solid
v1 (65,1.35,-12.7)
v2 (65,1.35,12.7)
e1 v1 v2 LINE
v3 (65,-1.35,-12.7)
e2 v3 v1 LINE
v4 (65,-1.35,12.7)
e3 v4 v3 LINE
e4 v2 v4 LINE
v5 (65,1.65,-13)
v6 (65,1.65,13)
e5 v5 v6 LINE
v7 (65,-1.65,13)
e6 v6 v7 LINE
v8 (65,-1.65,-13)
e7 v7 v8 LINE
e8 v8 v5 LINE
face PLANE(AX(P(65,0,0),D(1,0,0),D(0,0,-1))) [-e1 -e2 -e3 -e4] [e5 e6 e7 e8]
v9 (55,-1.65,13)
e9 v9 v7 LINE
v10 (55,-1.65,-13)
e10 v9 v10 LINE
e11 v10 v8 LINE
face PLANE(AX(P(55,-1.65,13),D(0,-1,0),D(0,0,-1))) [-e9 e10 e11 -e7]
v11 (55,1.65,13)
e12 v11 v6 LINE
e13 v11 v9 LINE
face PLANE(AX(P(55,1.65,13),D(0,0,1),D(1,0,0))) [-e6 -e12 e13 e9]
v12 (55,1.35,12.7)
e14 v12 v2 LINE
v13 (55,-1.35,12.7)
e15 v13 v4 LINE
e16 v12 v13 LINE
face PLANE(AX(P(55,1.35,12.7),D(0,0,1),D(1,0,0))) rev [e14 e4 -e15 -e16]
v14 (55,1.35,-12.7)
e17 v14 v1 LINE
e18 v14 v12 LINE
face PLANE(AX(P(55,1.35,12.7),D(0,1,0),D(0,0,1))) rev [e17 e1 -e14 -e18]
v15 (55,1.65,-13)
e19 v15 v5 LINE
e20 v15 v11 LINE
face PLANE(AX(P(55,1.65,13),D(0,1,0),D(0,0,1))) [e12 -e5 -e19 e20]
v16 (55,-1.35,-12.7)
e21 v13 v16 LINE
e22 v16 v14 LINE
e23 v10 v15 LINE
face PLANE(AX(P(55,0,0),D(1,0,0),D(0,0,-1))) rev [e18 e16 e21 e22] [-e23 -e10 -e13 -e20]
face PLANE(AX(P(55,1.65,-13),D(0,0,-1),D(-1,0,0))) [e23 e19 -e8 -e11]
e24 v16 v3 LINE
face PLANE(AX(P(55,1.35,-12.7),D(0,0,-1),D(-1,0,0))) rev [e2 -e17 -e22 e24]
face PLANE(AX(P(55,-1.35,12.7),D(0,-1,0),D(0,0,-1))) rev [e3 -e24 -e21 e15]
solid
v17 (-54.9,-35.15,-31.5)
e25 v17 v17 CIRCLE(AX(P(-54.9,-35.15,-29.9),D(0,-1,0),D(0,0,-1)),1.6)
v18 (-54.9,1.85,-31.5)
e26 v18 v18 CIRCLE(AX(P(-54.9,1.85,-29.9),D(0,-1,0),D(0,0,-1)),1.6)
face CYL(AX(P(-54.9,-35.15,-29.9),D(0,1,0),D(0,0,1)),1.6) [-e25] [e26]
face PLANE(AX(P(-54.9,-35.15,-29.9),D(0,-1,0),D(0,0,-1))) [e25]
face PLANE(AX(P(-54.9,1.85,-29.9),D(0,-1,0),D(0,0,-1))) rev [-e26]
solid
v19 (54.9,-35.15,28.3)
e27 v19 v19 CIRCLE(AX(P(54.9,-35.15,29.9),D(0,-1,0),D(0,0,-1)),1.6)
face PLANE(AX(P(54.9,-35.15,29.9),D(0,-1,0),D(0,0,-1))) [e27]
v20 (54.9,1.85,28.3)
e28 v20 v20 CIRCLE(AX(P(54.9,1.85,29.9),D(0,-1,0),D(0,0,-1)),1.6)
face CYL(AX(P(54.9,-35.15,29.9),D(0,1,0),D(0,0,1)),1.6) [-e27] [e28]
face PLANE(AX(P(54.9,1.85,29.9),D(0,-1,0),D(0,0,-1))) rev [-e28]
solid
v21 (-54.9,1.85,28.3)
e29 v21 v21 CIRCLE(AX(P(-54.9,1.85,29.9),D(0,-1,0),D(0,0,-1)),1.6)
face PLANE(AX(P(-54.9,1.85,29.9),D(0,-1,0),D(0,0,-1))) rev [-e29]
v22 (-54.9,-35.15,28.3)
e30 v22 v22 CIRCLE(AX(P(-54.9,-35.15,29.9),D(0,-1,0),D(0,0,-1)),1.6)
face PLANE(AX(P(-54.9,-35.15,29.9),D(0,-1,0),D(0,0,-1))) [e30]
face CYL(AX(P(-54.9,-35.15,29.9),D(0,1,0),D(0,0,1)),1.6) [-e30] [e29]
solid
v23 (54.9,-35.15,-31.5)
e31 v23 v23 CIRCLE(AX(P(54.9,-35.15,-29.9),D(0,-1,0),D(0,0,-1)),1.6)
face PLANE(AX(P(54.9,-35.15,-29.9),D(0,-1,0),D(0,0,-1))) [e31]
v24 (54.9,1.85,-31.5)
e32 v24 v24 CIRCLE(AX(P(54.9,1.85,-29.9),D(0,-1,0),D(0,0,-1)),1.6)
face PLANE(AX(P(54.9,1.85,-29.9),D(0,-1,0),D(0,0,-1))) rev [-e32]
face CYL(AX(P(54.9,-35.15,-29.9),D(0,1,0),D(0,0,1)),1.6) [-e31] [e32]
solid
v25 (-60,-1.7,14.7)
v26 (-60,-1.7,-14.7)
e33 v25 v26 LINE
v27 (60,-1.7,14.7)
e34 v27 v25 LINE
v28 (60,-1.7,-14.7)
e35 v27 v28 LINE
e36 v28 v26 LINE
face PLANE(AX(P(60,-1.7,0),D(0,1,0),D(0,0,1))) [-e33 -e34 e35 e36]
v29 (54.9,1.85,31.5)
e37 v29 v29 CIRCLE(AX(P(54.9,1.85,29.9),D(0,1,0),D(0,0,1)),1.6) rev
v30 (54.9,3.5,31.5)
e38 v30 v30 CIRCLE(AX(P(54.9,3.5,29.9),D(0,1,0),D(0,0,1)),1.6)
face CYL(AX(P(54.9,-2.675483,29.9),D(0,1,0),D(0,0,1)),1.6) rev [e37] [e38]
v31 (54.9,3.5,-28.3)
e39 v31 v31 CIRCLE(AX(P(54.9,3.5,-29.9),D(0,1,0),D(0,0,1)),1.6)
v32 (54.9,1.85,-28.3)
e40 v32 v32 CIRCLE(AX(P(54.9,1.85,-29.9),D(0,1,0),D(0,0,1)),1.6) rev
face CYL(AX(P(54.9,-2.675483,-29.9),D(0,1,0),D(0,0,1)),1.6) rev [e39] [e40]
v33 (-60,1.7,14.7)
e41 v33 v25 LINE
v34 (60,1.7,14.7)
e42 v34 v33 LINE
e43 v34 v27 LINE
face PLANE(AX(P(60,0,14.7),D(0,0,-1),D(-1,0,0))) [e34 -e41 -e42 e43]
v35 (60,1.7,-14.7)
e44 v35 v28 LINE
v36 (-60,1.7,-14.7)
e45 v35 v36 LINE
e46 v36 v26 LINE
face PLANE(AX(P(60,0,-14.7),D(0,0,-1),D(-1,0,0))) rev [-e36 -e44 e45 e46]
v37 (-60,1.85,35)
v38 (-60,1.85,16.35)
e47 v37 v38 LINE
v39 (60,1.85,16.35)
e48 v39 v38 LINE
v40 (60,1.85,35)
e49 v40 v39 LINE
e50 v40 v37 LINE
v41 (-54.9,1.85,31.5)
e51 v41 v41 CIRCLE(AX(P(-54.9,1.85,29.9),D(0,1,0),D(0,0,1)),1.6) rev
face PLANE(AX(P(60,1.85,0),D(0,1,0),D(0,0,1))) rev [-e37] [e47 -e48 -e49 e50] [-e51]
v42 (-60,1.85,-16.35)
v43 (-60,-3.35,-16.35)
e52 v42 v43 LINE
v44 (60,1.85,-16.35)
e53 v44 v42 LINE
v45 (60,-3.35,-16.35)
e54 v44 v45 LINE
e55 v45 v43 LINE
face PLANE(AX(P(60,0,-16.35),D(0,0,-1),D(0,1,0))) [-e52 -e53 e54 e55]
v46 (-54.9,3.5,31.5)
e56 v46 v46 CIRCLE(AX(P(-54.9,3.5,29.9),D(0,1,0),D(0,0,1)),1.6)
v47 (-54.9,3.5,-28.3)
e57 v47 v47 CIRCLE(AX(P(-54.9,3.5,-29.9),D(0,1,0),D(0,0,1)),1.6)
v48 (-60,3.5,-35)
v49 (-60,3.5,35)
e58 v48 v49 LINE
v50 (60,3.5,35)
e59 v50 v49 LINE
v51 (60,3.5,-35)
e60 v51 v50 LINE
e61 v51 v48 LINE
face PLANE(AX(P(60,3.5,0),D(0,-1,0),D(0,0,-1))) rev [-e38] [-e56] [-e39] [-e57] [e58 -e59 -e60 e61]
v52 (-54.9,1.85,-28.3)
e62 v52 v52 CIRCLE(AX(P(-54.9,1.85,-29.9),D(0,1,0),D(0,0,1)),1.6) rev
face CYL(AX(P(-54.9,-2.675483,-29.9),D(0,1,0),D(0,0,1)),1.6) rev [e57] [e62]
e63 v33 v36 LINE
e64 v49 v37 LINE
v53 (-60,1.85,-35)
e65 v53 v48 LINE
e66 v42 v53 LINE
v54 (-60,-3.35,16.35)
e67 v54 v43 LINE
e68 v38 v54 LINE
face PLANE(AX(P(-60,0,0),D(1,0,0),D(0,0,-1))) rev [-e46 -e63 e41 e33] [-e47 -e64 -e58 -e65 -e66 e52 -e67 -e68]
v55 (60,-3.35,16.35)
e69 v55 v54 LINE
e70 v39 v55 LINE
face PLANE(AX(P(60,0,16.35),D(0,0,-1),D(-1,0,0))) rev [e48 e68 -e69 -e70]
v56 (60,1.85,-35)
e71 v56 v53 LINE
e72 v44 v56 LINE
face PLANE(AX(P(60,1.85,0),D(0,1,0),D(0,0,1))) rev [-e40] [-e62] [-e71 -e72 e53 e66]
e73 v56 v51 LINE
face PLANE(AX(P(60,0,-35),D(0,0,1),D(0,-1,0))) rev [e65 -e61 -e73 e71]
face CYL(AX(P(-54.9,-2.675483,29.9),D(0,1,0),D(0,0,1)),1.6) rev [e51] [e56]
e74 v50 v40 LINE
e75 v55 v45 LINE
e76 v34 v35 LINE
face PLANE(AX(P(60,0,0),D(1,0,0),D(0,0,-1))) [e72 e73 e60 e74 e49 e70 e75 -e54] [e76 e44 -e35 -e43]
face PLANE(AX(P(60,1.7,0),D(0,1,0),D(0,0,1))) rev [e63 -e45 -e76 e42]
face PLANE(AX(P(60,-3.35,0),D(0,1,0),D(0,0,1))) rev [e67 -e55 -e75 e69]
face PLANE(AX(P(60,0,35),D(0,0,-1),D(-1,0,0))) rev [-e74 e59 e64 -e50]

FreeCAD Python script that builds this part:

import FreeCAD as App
import Part
import Sketcher


def add_polygon(sketch, points):
    """Adds a closed chain of lines whose ends are joined by coincident constraints."""
    first, n = sketch.GeometryCount, len(points)
    for a, b in zip(points, points[1:] + points[:1]):
        sketch.addGeometry(Part.LineSegment(App.Vector(*a, 0), App.Vector(*b, 0)), False)
    for i in range(n):
        sketch.addConstraint(Sketcher.Constraint("Coincident", first + i, 2, first + (i + 1) % n, 1))

doc = App.newDocument("Part")
params = doc.addObject("Spreadsheet::Sheet", "Params")
for row, (alias, value) in enumerate([
    ("sketch1_height", "70 mm"),
    ("sketch1_width", "5.2 mm"),
    ("sketch1_width2", "3.4 mm"),
    ("sketch1_height2", "32.7 mm"),
    ("sketch1_height3", "29.4 mm"),
    ("pad1_length", "120 mm"),
    ("sketch2_diameter", "3.2 mm"),
    ("pocket1_length", "1.65 mm"),
    ("sketch3_height", "26 mm"),
    ("sketch3_width", "3.3 mm"),
    ("sketch3_width2", "2.7 mm"),
    ("sketch3_height2", "25.4 mm"),
    ("pad2_length", "5 mm"),
    ("pad2_length2", "5 mm"),
    ("sketch4_diameter", "3.2 mm"),
    ("pad3_length", "37 mm"),
    ("sketch5_diameter", "3.2 mm"),
    ("pad4_length", "37 mm"),
    ("sketch6_diameter", "3.2 mm"),
    ("pad5_length", "37 mm"),
    ("sketch7_diameter", "3.2 mm"),
    ("pad6_length", "37 mm"),
], start=1):
    params.set(f"A{row}", alias)
    params.set(f"B{row}", "=" + value)
    params.setAlias(f"B{row}", alias)

body = doc.addObject("PartDesign::Body", "Body")

# Sketch on YZ plane
sketch1 = body.newObject("Sketcher::SketchObject", "Sketch")
sketch1.AttachmentSupport = (doc.getObject("YZ_Plane"), [""])
sketch1.MapMode = "FlatFace"
add_polygon(sketch1, [(1.85, 35), (1.85, 16.35), (-3.35, 16.35), (-3.35, -16.35), (1.85, -16.35), (1.85, -35), (3.5, -35), (3.5, 35)])  # lines 0-7
add_polygon(sketch1, [(-1.7, -14.7), (-1.7, 14.7), (1.7, 14.7), (1.7, -14.7)])  # lines 8-11
sketch1.addConstraint([
    Sketcher.Constraint("Vertical", 0),
    Sketcher.Constraint("Horizontal", 1),
    Sketcher.Constraint("Vertical", 2),
    Sketcher.Constraint("Horizontal", 3),
    Sketcher.Constraint("Vertical", 4),
    Sketcher.Constraint("Horizontal", 5),
    Sketcher.Constraint("Vertical", 6),
    Sketcher.Constraint("Horizontal", 7),
    Sketcher.Constraint("Vertical", 8),
    Sketcher.Constraint("Horizontal", 9),
    Sketcher.Constraint("Vertical", 10),
    Sketcher.Constraint("Horizontal", 11),
    Sketcher.Constraint("Symmetric", 8, 2, 10, 2, -1, 1),
    Sketcher.Constraint("Symmetric", 0, 2, 3, 2, -1),
    Sketcher.Constraint("Equal", 0, 4),
    Sketcher.Constraint("DistanceY", 6, 1, 6, 2, 70.0),
    Sketcher.Constraint("DistanceX", 1, 2, 1, 1, 5.2),
    Sketcher.Constraint("DistanceX", 9, 1, 9, 2, 3.4),
    Sketcher.Constraint("DistanceY", 2, 2, 2, 1, 32.7),
    Sketcher.Constraint("DistanceY", 8, 1, 8, 2, 29.4),
    Sketcher.Constraint("DistanceX", 5, 1, 5, 2, 1.65),
    Sketcher.Constraint("DistanceX", -1, 1, 5, 2, 3.5),
])
sketch1.setExpression("Constraints[27]", "Params.sketch1_height")
sketch1.setExpression("Constraints[28]", "Params.sketch1_width")
sketch1.setExpression("Constraints[29]", "Params.sketch1_width2")
sketch1.setExpression("Constraints[30]", "Params.sketch1_height2")
sketch1.setExpression("Constraints[31]", "Params.sketch1_height3")
pad1 = body.newObject("PartDesign::Pad", "Pad")
pad1.Profile = sketch1
pad1.setExpression("Length", "Params.pad1_length")
pad1.Midplane = True

# Sketch on XZ plane
sketch2 = body.newObject("Sketcher::SketchObject", "Sketch001")
sketch2.AttachmentSupport = (doc.getObject("XZ_Plane"), [""])
sketch2.MapMode = "FlatFace"
sketch2.AttachmentOffset = App.Placement(App.Vector(0, 0, -3.5), App.Rotation())
sketch2.addGeometry([
    Part.Circle(App.Vector(-54.9, -29.9, 0), App.Vector(0, 0, 1), 1.6),
    Part.Circle(App.Vector(-54.9, 29.9, 0), App.Vector(0, 0, 1), 1.6),
    Part.Circle(App.Vector(54.9, 29.9, 0), App.Vector(0, 0, 1), 1.6),
    Part.Circle(App.Vector(54.9, -29.9, 0), App.Vector(0, 0, 1), 1.6),
], False)
sketch2.addConstraint([
    Sketcher.Constraint("Equal", 0, 1),
    Sketcher.Constraint("Equal", 1, 2),
    Sketcher.Constraint("Equal", 2, 3),
    Sketcher.Constraint("Symmetric", 0, 3, 2, 3, -1, 1),
    Sketcher.Constraint("Symmetric", 1, 3, 3, 3, -1, 1),
    Sketcher.Constraint("Symmetric", 1, 3, 2, 3, -2),
    Sketcher.Constraint("Diameter", 0, 3.2),
    Sketcher.Constraint("DistanceX", 0, 3, -1, 1, 54.9),
    Sketcher.Constraint("DistanceY", 0, 3, -1, 1, 29.9),
])
sketch2.setExpression("Constraints[6]", "Params.sketch2_diameter")
pocket1 = body.newObject("PartDesign::Pocket", "Pocket")
pocket1.Profile = sketch2
pocket1.setExpression("Length", "Params.pocket1_length")
pocket1.Reversed = True
body2 = doc.addObject("PartDesign::Body", "Body001")

# Sketch on YZ plane
sketch3 = body2.newObject("Sketcher::SketchObject", "Sketch002")
sketch3.AttachmentSupport = (doc.getObject("YZ_Plane001"), [""])
sketch3.MapMode = "FlatFace"
sketch3.AttachmentOffset = App.Placement(App.Vector(0, 0, 60), App.Rotation())
add_polygon(sketch3, [(1.65, 13), (-1.65, 13), (-1.65, -13), (1.65, -13)])  # lines 0-3
add_polygon(sketch3, [(-1.35, -12.7), (-1.35, 12.7), (1.35, 12.7), (1.35, -12.7)])  # lines 4-7
sketch3.addConstraint([
    Sketcher.Constraint("Horizontal", 0),
    Sketcher.Constraint("Vertical", 1),
    Sketcher.Constraint("Horizontal", 2),
    Sketcher.Constraint("Vertical", 3),
    Sketcher.Constraint("Vertical", 4),
    Sketcher.Constraint("Horizontal", 5),
    Sketcher.Constraint("Vertical", 6),
    Sketcher.Constraint("Horizontal", 7),
    Sketcher.Constraint("Symmetric", 0, 2, 2, 2, -1, 1),
    Sketcher.Constraint("Symmetric", 4, 2, 6, 2, -1, 1),
    Sketcher.Constraint("DistanceY", 1, 2, 1, 1, 26.0),
    Sketcher.Constraint("DistanceX", 0, 2, 0, 1, 3.3),
    Sketcher.Constraint("DistanceX", 5, 1, 5, 2, 2.7),
    Sketcher.Constraint("DistanceY", 4, 1, 4, 2, 25.4),
])
sketch3.setExpression("Constraints[18]", "Params.sketch3_height")
sketch3.setExpression("Constraints[19]", "Params.sketch3_width")
sketch3.setExpression("Constraints[20]", "Params.sketch3_width2")
sketch3.setExpression("Constraints[21]", "Params.sketch3_height2")
pad2 = body2.newObject("PartDesign::Pad", "Pad001")
pad2.Profile = sketch3
pad2.Type = "TwoLengths"
pad2.setExpression("Length", "Params.pad2_length")
pad2.setExpression("Length2", "Params.pad2_length2")
body3 = doc.addObject("PartDesign::Body", "Body002")

# Sketch on XZ plane
sketch4 = body3.newObject("Sketcher::SketchObject", "Sketch003")
sketch4.AttachmentSupport = (doc.getObject("XZ_Plane002"), [""])
sketch4.MapMode = "FlatFace"
sketch4.AttachmentOffset = App.Placement(App.Vector(0, 0, -1.85), App.Rotation())
sketch4.addGeometry(Part.Circle(App.Vector(-54.9, -29.9, 0), App.Vector(0, 0, 1), 1.6), False)
sketch4.addConstraint([
    Sketcher.Constraint("Diameter", 0, 3.2),
    Sketcher.Constraint("DistanceX", 0, 3, -1, 1, 54.9),
    Sketcher.Constraint("DistanceY", 0, 3, -1, 1, 29.9),
])
sketch4.setExpression("Constraints[0]", "Params.sketch4_diameter")
pad3 = body3.newObject("PartDesign::Pad", "Pad002")
pad3.Profile = sketch4
pad3.setExpression("Length", "Params.pad3_length")
body4 = doc.addObject("PartDesign::Body", "Body003")

# Sketch on XZ plane
sketch5 = body4.newObject("Sketcher::SketchObject", "Sketch004")
sketch5.AttachmentSupport = (doc.getObject("XZ_Plane003"), [""])
sketch5.MapMode = "FlatFace"
sketch5.AttachmentOffset = App.Placement(App.Vector(0, 0, -1.85), App.Rotation())
sketch5.addGeometry(Part.Circle(App.Vector(54.9, -29.9, 0), App.Vector(0, 0, 1), 1.6), False)
sketch5.addConstraint([
    Sketcher.Constraint("Diameter", 0, 3.2),
    Sketcher.Constraint("DistanceX", -1, 1, 0, 3, 54.9),
    Sketcher.Constraint("DistanceY", 0, 3, -1, 1, 29.9),
])
sketch5.setExpression("Constraints[0]", "Params.sketch5_diameter")
pad4 = body4.newObject("PartDesign::Pad", "Pad003")
pad4.Profile = sketch5
pad4.setExpression("Length", "Params.pad4_length")
body5 = doc.addObject("PartDesign::Body", "Body004")

# Sketch on XZ plane
sketch6 = body5.newObject("Sketcher::SketchObject", "Sketch005")
sketch6.AttachmentSupport = (doc.getObject("XZ_Plane004"), [""])
sketch6.MapMode = "FlatFace"
sketch6.AttachmentOffset = App.Placement(App.Vector(0, 0, -1.85), App.Rotation())
sketch6.addGeometry(Part.Circle(App.Vector(54.9, 29.9, 0), App.Vector(0, 0, 1), 1.6), False)
sketch6.addConstraint([
    Sketcher.Constraint("Diameter", 0, 3.2),
    Sketcher.Constraint("DistanceX", -1, 1, 0, 3, 54.9),
    Sketcher.Constraint("DistanceY", -1, 1, 0, 3, 29.9),
])
sketch6.setExpression("Constraints[0]", "Params.sketch6_diameter")
pad5 = body5.newObject("PartDesign::Pad", "Pad004")
pad5.Profile = sketch6
pad5.setExpression("Length", "Params.pad5_length")
body6 = doc.addObject("PartDesign::Body", "Body005")

# Sketch on XZ plane
sketch7 = body6.newObject("Sketcher::SketchObject", "Sketch006")
sketch7.AttachmentSupport = (doc.getObject("XZ_Plane005"), [""])
sketch7.MapMode = "FlatFace"
sketch7.AttachmentOffset = App.Placement(App.Vector(0, 0, -1.85), App.Rotation())
sketch7.addGeometry(Part.Circle(App.Vector(-54.9, 29.9, 0), App.Vector(0, 0, 1), 1.6), False)
sketch7.addConstraint([
    Sketcher.Constraint("Diameter", 0, 3.2),
    Sketcher.Constraint("DistanceX", 0, 3, -1, 1, 54.9),
    Sketcher.Constraint("DistanceY", -1, 1, 0, 3, 29.9),
])
sketch7.setExpression("Constraints[0]", "Params.sketch7_diameter")
pad6 = body6.newObject("PartDesign::Pad", "Pad005")
pad6.Profile = sketch7
pad6.setExpression("Length", "Params.pad6_length")

doc.recompute()
